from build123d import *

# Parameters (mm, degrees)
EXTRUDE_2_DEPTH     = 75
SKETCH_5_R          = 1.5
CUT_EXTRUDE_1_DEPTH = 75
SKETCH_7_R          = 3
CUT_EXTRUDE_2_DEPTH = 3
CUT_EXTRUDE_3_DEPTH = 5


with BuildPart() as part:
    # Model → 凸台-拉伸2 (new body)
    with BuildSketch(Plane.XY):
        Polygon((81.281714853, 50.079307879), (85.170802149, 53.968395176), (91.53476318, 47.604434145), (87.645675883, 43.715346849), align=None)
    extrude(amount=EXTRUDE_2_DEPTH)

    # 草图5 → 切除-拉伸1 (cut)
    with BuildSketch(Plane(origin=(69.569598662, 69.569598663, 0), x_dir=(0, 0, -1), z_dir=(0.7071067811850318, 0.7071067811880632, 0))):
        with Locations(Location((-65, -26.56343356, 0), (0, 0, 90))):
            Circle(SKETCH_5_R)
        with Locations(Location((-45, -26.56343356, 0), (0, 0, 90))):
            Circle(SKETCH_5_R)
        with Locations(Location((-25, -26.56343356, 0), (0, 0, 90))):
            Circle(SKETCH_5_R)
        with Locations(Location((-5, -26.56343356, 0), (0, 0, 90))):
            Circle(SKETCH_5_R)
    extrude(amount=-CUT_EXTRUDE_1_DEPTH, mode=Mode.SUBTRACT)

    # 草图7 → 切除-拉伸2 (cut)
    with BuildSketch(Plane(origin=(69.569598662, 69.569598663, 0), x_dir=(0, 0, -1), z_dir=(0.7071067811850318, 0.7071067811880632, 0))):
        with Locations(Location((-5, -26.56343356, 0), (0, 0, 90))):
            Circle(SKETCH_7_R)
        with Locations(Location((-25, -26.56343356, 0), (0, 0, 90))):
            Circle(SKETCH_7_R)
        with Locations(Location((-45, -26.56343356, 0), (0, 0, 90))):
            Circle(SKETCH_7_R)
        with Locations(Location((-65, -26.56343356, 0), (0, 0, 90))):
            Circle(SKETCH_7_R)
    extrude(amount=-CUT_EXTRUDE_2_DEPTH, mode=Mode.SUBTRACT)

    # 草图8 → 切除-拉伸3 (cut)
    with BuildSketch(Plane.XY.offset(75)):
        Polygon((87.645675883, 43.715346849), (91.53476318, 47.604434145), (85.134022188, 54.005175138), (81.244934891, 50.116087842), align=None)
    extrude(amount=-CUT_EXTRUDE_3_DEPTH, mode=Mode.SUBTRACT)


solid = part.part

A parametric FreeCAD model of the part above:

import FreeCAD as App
import Part
import Sketcher
Q = App.Units.Quantity


def add_polygon(sketch, points):
    """Adds a closed chain of lines whose ends are joined by coincident constraints."""
    first, n = sketch.GeometryCount, len(points)
    for a, b in zip(points, points[1:] + points[:1]):
        sketch.addGeometry(Part.LineSegment(App.Vector(*a, 0), App.Vector(*b, 0)), False)
    for i in range(n):
        sketch.addConstraint(Sketcher.Constraint("Coincident", first + i, 2, first + (i + 1) % n, 1))

doc = App.newDocument("Part")
params = doc.addObject("Spreadsheet::Sheet", "Params")
for row, (alias, value) in enumerate([
    ("sketch1_length", "9 mm"),
    ("sketch1_length2", "5.5 mm"),
    ("pad1_length", "75 mm"),
    ("sketch2_diameter", "3 mm"),
    ("pocket1_length", "75 mm"),
    ("sketch3_diameter", "6 mm"),
    ("pocket2_length", "3 mm"),
    ("sketch4_length", "5.5 mm"),
    ("pocket3_length", "5 mm"),
], start=1):
    params.set(f"A{row}", alias)
    params.set(f"B{row}", "=" + value)
    params.setAlias(f"B{row}", alias)

body = doc.addObject("PartDesign::Body", "Body")

sketch1 = doc.addObject("Sketcher::SketchObject", "Sketch")
body.addObject(sketch1)
sketch1.AttachmentSupport = (doc.XY_Plane, [""])
sketch1.MapMode = "FlatFace"
add_polygon(sketch1, [(85.170802, 53.968395), (81.281715, 50.079308), (87.645676, 43.715347), (91.534763, 47.604434)])
sketch1.addConstraint(Sketcher.Constraint("Perpendicular", 0, 1))
sketch1.addConstraint(Sketcher.Constraint("Perpendicular", 1, 2))
sketch1.addConstraint(Sketcher.Constraint("Perpendicular", 2, 3))
sketch1.addConstraint(Sketcher.Constraint("Angle", 0, Q("-135 deg")))
sketch1.addConstraint(Sketcher.Constraint("Distance", 1, 9.0))
sketch1.addConstraint(Sketcher.Constraint("Distance", 0, 5.5))
sketch1.addConstraint(Sketcher.Constraint("DistanceX", -1, 1, 0, 2, 81.281715))
sketch1.addConstraint(Sketcher.Constraint("DistanceY", -1, 1, 0, 2, 50.079308))
sketch1.setExpression("Constraints[8]", "Params.sketch1_length")
sketch1.setExpression("Constraints[9]", "Params.sketch1_length2")
pad1 = doc.addObject("PartDesign::Pad", "Pad")
body.addObject(pad1)
pad1.Profile = sketch1
pad1.setExpression("Length", "Params.pad1_length")

sketch2 = doc.addObject("Sketcher::SketchObject", "Sketch001")
body.addObject(sketch2)
sketch2.Placement = App.Placement(App.Vector(69.569599, 69.569599, 0), App.Rotation(App.Vector(0, 0, -1), App.Vector(-0.707106781, 0.707106781, 0), App.Vector(0.707106781, 0.707106781, 0), "ZXY"))
sketch2.addGeometry(Part.Circle(App.Vector(-65, -26.563434, 0), App.Vector(0, 0, 1), 1.5), False)
sketch2.addGeometry(Part.Circle(App.Vector(-45, -26.563434, 0), App.Vector(0, 0, 1), 1.5), False)
sketch2.addGeometry(Part.Circle(App.Vector(-25, -26.563434, 0), App.Vector(0, 0, 1), 1.5), False)
sketch2.addGeometry(Part.Circle(App.Vector(-5, -26.563434, 0), App.Vector(0, 0, 1), 1.5), False)
sketch2.addConstraint(Sketcher.Constraint("Equal", 0, 1))
sketch2.addConstraint(Sketcher.Constraint("Equal", 1, 2))
sketch2.addConstraint(Sketcher.Constraint("Equal", 2, 3))
sketch2.addConstraint(Sketcher.Constraint("Horizontal", 0, 3, 1, 3))
sketch2.addConstraint(Sketcher.Constraint("Horizontal", 1, 3, 2, 3))
sketch2.addConstraint(Sketcher.Constraint("Horizontal", 2, 3, 3, 3))
sketch2.addConstraint(Sketcher.Constraint("Diameter", 0, 3.0))
sketch2.addConstraint(Sketcher.Constraint("DistanceX", 0, 3, -1, 1, 65.0))
sketch2.addConstraint(Sketcher.Constraint("DistanceX", 1, 3, -1, 1, 45.0))
sketch2.addConstraint(Sketcher.Constraint("DistanceX", 2, 3, -1, 1, 25.0))
sketch2.addConstraint(Sketcher.Constraint("DistanceX", 3, 3, -1, 1, 5.0))
sketch2.addConstraint(Sketcher.Constraint("DistanceY", 0, 3, -1, 1, 26.563434))
sketch2.setExpression("Constraints[6]", "Params.sketch2_diameter")
pocket1 = doc.addObject("PartDesign::Pocket", "Pocket")
body.addObject(pocket1)
pocket1.Profile = sketch2
pocket1.setExpression("Length", "Params.pocket1_length")

sketch3 = doc.addObject("Sketcher::SketchObject", "Sketch002")
body.addObject(sketch3)
sketch3.Placement = App.Placement(App.Vector(69.569599, 69.569599, 0), App.Rotation(App.Vector(0, 0, -1), App.Vector(-0.707106781, 0.707106781, 0), App.Vector(0.707106781, 0.707106781, 0), "ZXY"))
sketch3.addGeometry(Part.Circle(App.Vector(-5, -26.563434, 0), App.Vector(0, 0, 1), 3), False)
sketch3.addGeometry(Part.Circle(App.Vector(-25, -26.563434, 0), App.Vector(0, 0, 1), 3), False)
sketch3.addGeometry(Part.Circle(App.Vector(-45, -26.563434, 0), App.Vector(0, 0, 1), 3), False)
sketch3.addGeometry(Part.Circle(App.Vector(-65, -26.563434, 0), App.Vector(0, 0, 1), 3), False)
sketch3.addConstraint(Sketcher.Constraint("Equal", 0, 1))
sketch3.addConstraint(Sketcher.Constraint("Equal", 1, 2))
sketch3.addConstraint(Sketcher.Constraint("Equal", 2, 3))
sketch3.addConstraint(Sketcher.Constraint("Horizontal", 0, 3, 1, 3))
sketch3.addConstraint(Sketcher.Constraint("Horizontal", 1, 3, 2, 3))
sketch3.addConstraint(Sketcher.Constraint("Horizontal", 2, 3, 3, 3))
sketch3.addConstraint(Sketcher.Constraint("Diameter", 0, 6.0))
sketch3.addConstraint(Sketcher.Constraint("DistanceX", 0, 3, -1, 1, 5.0))
sketch3.addConstraint(Sketcher.Constraint("DistanceX", 1, 3, -1, 1, 25.0))
sketch3.addConstraint(Sketcher.Constraint("DistanceX", 2, 3, -1, 1, 45.0))
sketch3.addConstraint(Sketcher.Constraint("DistanceX", 3, 3, -1, 1, 65.0))
sketch3.addConstraint(Sketcher.Constraint("DistanceY", 0, 3, -1, 1, 26.563434))
sketch3.setExpression("Constraints[6]", "Params.sketch3_diameter")
pocket2 = doc.addObject("PartDesign::Pocket", "Pocket001")
body.addObject(pocket2)
pocket2.Profile = sketch3
pocket2.setExpression("Length", "Params.pocket2_length")

sketch4 = doc.addObject("Sketcher::SketchObject", "Sketch003")
body.addObject(sketch4)
sketch4.AttachmentSupport = (doc.XY_Plane, [""])
sketch4.MapMode = "FlatFace"
sketch4.AttachmentOffset = App.Placement(App.Vector(0, 0, 75), App.Rotation())
add_polygon(sketch4, [(87.645676, 43.715347), (91.534763, 47.604434), (85.134022, 54.005175), (81.244935, 50.116088)])
sketch4.addConstraint(Sketcher.Constraint("Perpendicular", 0, 1))
sketch4.addConstraint(Sketcher.Constraint("Perpendicular", 1, 2))
sketch4.addConstraint(Sketcher.Constraint("Perpendicular", 2, 3))
sketch4.addConstraint(Sketcher.Constraint("Angle", 0, Q("45 deg")))
sketch4.addConstraint(Sketcher.Constraint("Distance", 0, 5.5))
sketch4.addConstraint(Sketcher.Constraint("DistanceX", 1, 2, 0, 2, 6.400741))
sketch4.addConstraint(Sketcher.Constraint("DistanceX", -1, 1, 0, 2, 91.534763))
sketch4.addConstraint(Sketcher.Constraint("DistanceY", -1, 1, 0, 2, 47.604434))
sketch4.setExpression("Constraints[8]", "Params.sketch4_length")
pocket3 = doc.addObject("PartDesign::Pocket", "Pocket002")
body.addObject(pocket3)
pocket3.Profile = sketch4
pocket3.setExpression("Length", "Params.pocket3_length")

doc.recompute()
